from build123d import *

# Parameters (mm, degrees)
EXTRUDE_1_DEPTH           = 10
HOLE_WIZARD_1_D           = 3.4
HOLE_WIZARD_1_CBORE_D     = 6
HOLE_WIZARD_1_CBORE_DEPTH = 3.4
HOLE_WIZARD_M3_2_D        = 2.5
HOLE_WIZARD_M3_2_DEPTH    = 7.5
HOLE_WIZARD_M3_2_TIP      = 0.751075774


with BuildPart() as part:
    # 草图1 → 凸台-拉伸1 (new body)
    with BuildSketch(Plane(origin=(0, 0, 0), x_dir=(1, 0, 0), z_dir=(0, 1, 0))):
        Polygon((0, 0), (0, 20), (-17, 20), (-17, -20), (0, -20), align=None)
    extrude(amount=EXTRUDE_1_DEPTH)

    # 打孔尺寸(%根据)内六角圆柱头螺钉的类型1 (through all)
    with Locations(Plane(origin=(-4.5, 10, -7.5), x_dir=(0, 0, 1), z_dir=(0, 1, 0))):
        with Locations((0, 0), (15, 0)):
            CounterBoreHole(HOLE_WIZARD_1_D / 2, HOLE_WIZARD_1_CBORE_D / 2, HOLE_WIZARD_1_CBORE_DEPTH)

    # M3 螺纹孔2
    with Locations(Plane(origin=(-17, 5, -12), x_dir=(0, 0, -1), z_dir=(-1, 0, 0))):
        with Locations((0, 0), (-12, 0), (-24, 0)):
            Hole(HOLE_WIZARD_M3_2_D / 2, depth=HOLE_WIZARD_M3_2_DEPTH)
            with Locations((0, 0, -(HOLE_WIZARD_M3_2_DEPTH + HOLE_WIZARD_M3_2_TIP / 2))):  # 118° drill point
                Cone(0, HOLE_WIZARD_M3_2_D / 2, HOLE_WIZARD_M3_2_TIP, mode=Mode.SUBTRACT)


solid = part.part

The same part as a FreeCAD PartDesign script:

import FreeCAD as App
import Part
import Sketcher
from FreeCAD import Vector
Q = App.Units.Quantity


def add_polygon(sketch, points):
    """Adds a closed chain of lines whose ends are joined by coincident constraints."""
    first, n = sketch.GeometryCount, len(points)
    for a, b in zip(points, points[1:] + points[:1]):
        sketch.addGeometry(Part.LineSegment(App.Vector(*a, 0), App.Vector(*b, 0)), False)
    for i in range(n):
        sketch.addConstraint(Sketcher.Constraint("Coincident", first + i, 2, first + (i + 1) % n, 1))

doc = App.newDocument("Part")
body = doc.addObject("PartDesign::Body", "Body")

# Sketch on XZ plane
sketch1 = body.newObject("Sketcher::SketchObject", "Sketch")
sketch1.AttachmentSupport = (doc.getObject("XZ_Plane"), [""])
sketch1.MapMode = "FlatFace"
add_polygon(sketch1, [(0, -20), (-17, -20), (-17, 20), (0, 20)])  # lines 0-3
sketch1.addConstraint([
    Sketcher.Constraint("Horizontal", 0),
    Sketcher.Constraint("Vertical", 1),
    Sketcher.Constraint("Horizontal", 2),
    Sketcher.Constraint("Vertical", 3),
    Sketcher.Constraint("Symmetric", 2, 2, 3, 2, -1, 1),
    Sketcher.Constraint("DistanceX", 0, 2, 0, 1, Q("17 mm")),
    Sketcher.Constraint("DistanceY", 1, 1, 1, 2, Q("40 mm")),
])
pad1 = body.newObject("PartDesign::Pad", "Pad")
pad1.Profile = sketch1
pad1.Length = 10
pad1.Reversed = True

# Sketch on XZ plane
sketch2 = body.newObject("Sketcher::SketchObject", "Sketch001")
sketch2.AttachmentSupport = (doc.getObject("XZ_Plane"), [""])
sketch2.MapMode = "FlatFace"
sketch2.AttachmentOffset = App.Placement(Vector(0, 0, -10), App.Rotation())
sketch2.addGeometry([
    Part.Circle(Vector(-4.5, -7.5, 0), Vector(0, 0, 1), 1.7),
    Part.Circle(Vector(-4.5, 7.5, 0), Vector(0, 0, 1), 1.7),
], False)
sketch2.addConstraint([
    Sketcher.Constraint("Equal", 0, 1),
    Sketcher.Constraint("Symmetric", 0, 3, 1, 3, -1),
    Sketcher.Constraint("Diameter", 0, Q("3.4 mm")),
    Sketcher.Constraint("DistanceY", 0, 3, 1, 3, Q("15 mm")),
    Sketcher.Constraint("DistanceX", 0, 3, -1, 1, Q("4.5 mm")),
])
doc.recompute()
hole = body.newObject("PartDesign::Hole", "Hole")
hole.Profile = sketch2
hole.ThreadType = "None"
hole.Diameter = 3.4
hole.DepthType = "ThroughAll"
hole.HoleCutType = "Counterbore"
hole.HoleCutDiameter = 6
hole.HoleCutDepth = 3.4
hole.Reversed = True

# Sketch on YZ plane
sketch3 = body.newObject("Sketcher::SketchObject", "Sketch002")
sketch3.AttachmentSupport = (doc.getObject("YZ_Plane"), [""])
sketch3.MapMode = "FlatFace"
sketch3.AttachmentOffset = App.Placement(Vector(0, 0, -17), App.Rotation())
sketch3.addGeometry([
    Part.Circle(Vector(5, -12, 0), Vector(0, 0, 1), 1.2),
    Part.Circle(Vector(5, 0, 0), Vector(0, 0, 1), 1.2),
    Part.Circle(Vector(5, 12, 0), Vector(0, 0, 1), 1.2),
], False)
sketch3.addConstraint([
    Sketcher.Constraint("Equal", 0, 1),
    Sketcher.Constraint("Equal", 1, 2),
    Sketcher.Constraint("Symmetric", 0, 3, 2, 3, -1),
    Sketcher.Constraint("PointOnObject", 1, 3, -1),
    Sketcher.Constraint("Vertical", 0, 3, 1, 3),
    Sketcher.Constraint("Diameter", 0, Q("2.5 mm")),
    Sketcher.Constraint("DistanceX", -1, 1, 0, 3, Q("5 mm")),
    Sketcher.Constraint("DistanceY", 0, 3, -1, 1, Q("12 mm")),
])
doc.recompute()
hole2 = body.newObject("PartDesign::Hole", "Hole001")
hole2.Profile = sketch3
hole2.ThreadType = "None"
hole2.Diameter = 2.5
hole2.DepthType = "Dimension"
hole2.Depth = 7.5
hole2.DrillPoint = "Angled"
hole2.DrillPointAngle = 118
hole2.Reversed = True

doc.recompute()
